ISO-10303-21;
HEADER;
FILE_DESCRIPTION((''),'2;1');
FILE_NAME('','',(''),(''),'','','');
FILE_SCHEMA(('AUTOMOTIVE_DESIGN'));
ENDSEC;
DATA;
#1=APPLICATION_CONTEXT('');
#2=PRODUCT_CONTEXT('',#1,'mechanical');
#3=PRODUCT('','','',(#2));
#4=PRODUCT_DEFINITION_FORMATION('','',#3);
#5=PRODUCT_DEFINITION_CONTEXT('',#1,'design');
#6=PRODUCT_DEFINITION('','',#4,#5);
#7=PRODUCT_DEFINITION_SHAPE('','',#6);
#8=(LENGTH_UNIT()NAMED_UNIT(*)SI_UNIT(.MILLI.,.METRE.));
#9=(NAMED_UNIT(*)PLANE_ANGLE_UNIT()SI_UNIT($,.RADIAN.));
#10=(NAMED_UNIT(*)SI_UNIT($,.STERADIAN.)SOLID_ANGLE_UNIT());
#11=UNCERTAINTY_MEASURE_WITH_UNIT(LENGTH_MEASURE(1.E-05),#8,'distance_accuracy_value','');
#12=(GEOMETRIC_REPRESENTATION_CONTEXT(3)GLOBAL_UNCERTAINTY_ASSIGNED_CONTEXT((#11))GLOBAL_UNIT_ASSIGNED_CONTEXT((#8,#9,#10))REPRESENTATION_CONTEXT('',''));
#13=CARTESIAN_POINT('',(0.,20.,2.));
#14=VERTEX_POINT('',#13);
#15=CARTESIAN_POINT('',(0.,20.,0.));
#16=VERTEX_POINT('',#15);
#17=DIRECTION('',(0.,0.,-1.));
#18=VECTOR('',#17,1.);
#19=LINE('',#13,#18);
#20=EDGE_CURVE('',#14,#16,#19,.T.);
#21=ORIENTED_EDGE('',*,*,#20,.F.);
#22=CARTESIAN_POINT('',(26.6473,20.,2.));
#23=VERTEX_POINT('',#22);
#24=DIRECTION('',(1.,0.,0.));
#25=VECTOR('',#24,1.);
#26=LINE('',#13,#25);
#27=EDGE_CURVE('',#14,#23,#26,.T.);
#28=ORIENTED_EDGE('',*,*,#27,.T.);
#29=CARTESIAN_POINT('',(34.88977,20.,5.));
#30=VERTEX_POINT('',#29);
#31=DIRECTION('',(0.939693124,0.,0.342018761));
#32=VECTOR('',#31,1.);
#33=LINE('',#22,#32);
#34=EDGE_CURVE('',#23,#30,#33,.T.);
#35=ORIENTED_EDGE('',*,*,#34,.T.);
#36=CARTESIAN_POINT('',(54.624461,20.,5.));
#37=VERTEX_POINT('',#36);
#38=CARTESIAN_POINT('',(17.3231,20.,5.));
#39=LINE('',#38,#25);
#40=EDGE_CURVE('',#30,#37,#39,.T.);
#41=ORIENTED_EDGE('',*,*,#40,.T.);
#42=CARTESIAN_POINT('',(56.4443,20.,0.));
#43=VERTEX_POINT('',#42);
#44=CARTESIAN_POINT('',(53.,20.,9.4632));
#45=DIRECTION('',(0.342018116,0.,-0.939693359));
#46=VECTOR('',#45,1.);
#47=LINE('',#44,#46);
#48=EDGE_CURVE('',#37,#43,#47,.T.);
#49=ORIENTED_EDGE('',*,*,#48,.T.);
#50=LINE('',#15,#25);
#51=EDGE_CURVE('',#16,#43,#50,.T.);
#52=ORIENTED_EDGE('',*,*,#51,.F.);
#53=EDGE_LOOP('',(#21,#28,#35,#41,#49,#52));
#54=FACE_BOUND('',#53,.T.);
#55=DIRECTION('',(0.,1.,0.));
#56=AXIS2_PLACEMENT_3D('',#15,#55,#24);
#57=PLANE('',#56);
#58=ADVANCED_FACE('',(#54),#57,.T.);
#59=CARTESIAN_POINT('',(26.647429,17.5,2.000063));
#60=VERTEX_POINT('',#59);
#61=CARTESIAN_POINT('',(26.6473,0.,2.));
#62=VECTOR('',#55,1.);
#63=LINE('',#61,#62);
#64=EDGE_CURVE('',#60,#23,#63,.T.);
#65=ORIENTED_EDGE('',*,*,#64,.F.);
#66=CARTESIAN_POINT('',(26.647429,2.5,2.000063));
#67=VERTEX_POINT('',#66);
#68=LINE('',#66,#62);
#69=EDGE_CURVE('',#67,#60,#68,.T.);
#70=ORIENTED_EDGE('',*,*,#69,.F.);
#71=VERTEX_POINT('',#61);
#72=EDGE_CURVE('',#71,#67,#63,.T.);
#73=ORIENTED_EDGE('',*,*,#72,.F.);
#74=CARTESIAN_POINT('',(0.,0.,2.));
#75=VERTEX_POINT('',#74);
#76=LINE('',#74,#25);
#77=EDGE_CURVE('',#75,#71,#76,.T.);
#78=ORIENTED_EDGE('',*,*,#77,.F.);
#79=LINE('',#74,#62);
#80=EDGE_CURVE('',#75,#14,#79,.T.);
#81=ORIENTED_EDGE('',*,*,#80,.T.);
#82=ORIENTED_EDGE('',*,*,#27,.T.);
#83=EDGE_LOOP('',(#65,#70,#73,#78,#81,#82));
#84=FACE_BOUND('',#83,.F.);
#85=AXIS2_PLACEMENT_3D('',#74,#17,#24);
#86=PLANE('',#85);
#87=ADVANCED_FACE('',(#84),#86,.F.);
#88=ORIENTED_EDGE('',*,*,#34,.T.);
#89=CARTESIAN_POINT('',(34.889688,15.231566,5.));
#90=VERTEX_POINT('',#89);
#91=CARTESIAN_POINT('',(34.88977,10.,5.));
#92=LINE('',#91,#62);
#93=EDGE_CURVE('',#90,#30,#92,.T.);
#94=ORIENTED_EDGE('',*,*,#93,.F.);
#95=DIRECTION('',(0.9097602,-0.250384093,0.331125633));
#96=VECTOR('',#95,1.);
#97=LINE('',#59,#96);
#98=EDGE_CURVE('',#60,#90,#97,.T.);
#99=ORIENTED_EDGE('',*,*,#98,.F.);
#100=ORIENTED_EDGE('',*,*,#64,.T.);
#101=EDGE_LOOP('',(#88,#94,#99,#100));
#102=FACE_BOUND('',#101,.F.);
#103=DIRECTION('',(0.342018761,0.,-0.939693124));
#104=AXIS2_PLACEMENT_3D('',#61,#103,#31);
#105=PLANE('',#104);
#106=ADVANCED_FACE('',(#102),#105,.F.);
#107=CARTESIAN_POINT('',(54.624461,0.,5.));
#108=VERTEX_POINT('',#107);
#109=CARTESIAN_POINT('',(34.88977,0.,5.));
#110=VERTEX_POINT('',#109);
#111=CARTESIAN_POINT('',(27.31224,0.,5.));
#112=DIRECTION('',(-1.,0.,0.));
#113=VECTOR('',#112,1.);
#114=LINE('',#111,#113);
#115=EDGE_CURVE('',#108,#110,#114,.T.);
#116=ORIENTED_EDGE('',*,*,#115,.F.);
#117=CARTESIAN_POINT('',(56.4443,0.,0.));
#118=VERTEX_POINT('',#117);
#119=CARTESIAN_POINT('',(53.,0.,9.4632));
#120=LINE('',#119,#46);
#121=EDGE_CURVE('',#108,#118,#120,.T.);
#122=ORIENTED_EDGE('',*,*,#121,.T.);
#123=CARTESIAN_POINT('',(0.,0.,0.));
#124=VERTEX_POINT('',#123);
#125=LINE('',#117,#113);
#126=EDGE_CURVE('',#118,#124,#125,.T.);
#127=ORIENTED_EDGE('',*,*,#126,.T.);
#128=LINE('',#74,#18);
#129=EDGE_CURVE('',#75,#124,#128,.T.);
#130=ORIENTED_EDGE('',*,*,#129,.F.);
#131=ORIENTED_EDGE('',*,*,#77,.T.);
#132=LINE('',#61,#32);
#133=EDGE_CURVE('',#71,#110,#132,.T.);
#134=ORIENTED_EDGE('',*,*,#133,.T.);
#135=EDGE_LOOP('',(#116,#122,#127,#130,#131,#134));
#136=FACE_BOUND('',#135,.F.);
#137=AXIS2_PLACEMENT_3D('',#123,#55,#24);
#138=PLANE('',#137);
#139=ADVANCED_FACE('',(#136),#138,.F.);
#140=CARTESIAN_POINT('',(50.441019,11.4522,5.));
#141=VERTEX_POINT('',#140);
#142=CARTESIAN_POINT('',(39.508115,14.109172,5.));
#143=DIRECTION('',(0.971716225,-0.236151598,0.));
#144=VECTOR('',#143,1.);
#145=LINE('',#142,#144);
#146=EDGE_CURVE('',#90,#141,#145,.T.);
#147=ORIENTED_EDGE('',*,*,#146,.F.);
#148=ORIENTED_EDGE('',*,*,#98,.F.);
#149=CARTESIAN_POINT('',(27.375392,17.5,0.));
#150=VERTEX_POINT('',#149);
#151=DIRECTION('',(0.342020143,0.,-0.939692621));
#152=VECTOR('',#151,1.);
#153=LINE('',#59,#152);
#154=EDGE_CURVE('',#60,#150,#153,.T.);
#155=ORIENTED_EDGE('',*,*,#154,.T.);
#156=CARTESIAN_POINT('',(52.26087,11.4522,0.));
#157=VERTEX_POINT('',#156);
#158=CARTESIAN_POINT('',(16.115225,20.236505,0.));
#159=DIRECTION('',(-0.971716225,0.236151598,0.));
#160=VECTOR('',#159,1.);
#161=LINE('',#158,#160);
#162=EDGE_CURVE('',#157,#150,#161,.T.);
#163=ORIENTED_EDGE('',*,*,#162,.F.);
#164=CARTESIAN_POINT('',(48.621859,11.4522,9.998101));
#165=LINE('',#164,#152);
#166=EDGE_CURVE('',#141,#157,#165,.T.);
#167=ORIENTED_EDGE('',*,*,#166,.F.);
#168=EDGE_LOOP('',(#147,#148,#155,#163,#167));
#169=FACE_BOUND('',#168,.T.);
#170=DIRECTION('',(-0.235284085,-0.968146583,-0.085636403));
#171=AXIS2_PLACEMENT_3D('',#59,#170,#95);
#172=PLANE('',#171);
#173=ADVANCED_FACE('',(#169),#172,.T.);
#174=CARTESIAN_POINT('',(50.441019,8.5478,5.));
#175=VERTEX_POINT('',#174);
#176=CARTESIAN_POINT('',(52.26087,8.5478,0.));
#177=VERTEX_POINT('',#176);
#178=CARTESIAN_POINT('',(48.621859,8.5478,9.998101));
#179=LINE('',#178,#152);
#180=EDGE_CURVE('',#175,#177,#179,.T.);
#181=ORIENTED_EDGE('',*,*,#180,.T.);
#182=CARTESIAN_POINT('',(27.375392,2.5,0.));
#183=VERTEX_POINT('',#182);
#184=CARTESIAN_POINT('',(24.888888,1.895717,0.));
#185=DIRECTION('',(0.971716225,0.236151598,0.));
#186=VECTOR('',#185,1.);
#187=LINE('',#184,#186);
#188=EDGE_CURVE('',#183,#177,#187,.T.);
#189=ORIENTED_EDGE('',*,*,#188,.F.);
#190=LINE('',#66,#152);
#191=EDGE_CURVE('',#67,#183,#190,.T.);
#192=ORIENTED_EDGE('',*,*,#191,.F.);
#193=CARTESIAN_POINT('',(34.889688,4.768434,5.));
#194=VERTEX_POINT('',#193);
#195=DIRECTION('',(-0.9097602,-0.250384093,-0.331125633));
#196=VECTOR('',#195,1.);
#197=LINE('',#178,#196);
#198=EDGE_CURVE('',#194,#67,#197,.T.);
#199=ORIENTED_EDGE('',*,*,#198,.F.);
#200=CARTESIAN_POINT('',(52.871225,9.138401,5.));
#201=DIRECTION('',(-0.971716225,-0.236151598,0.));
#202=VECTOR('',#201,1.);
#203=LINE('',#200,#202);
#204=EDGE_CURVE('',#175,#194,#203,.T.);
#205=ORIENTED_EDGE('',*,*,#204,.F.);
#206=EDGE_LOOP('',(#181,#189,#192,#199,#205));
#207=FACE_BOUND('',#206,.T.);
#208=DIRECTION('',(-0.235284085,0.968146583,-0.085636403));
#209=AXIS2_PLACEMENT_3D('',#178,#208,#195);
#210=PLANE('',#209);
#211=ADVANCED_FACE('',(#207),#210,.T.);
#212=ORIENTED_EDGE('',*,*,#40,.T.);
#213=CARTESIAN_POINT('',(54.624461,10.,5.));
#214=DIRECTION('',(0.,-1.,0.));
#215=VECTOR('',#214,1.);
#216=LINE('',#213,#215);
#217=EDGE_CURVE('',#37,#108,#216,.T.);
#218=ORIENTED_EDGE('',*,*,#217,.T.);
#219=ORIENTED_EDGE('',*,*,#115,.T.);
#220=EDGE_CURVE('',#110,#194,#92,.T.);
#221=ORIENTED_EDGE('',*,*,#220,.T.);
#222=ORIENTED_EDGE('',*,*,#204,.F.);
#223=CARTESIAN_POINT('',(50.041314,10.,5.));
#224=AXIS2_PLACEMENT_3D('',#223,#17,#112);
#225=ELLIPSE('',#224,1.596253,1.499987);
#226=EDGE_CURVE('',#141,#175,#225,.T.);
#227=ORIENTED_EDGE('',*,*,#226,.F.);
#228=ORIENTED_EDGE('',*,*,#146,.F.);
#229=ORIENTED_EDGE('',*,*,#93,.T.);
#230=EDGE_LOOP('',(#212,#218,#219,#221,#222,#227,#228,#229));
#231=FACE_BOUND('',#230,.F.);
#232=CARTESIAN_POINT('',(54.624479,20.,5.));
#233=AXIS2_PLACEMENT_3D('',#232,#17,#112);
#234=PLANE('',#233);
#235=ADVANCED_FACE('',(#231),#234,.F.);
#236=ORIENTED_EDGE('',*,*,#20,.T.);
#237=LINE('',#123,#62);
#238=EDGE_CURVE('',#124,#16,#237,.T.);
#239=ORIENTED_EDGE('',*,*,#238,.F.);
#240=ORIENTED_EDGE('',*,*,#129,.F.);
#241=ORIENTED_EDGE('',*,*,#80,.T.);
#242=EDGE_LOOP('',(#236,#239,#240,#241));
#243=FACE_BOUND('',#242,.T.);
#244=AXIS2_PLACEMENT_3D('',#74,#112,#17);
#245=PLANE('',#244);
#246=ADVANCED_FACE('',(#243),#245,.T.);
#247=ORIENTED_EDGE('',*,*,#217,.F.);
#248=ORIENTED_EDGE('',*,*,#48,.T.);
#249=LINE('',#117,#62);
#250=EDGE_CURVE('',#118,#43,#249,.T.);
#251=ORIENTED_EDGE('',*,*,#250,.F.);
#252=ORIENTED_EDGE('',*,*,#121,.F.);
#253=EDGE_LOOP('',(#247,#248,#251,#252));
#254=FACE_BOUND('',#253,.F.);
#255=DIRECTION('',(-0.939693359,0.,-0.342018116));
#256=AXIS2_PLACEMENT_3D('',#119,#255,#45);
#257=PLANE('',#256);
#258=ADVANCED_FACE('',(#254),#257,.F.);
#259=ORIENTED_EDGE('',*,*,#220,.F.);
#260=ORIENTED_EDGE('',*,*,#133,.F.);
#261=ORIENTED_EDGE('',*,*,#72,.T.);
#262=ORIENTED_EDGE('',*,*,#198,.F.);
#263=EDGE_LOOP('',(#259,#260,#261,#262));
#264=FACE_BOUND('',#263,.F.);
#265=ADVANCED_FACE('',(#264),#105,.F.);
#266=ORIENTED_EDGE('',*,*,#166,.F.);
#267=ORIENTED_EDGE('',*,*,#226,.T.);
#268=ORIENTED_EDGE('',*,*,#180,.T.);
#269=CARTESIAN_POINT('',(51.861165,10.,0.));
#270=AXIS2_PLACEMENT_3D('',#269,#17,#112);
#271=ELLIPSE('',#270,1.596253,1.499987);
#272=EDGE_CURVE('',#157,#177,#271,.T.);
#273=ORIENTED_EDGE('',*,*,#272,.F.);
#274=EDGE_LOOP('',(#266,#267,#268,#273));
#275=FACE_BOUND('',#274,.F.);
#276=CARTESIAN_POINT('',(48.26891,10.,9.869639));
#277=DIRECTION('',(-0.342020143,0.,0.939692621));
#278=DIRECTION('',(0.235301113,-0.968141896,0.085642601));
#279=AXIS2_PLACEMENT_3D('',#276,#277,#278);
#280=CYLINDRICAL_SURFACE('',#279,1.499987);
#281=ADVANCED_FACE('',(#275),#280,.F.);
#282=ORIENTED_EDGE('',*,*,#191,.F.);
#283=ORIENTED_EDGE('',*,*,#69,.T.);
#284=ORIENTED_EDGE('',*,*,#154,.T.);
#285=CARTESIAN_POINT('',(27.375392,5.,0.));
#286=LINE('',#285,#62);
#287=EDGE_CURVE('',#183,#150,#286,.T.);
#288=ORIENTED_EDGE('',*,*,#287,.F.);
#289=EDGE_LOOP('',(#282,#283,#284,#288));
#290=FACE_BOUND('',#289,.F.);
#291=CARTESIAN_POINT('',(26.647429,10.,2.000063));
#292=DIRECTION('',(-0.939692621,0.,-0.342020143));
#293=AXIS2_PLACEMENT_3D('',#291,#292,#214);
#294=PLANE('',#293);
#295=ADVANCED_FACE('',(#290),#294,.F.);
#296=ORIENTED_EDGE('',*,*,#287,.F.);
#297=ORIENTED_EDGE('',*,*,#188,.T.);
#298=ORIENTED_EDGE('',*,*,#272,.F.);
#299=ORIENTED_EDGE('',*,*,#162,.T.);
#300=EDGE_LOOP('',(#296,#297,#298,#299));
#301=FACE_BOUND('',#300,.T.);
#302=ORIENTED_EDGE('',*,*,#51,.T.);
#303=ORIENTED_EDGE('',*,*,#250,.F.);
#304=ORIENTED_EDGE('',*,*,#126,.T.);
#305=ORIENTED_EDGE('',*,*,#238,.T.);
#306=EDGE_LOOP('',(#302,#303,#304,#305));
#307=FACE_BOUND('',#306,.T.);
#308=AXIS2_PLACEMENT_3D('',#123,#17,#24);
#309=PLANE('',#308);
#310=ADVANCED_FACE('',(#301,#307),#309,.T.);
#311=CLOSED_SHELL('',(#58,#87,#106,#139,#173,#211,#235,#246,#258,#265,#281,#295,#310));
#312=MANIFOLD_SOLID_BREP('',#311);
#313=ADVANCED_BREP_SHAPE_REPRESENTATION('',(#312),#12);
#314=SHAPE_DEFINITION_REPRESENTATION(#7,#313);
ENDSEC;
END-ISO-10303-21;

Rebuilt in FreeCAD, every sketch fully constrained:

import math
import FreeCAD as App
import Part
import Sketcher
from FreeCAD import Vector
Q = App.Units.Quantity

doc = App.newDocument("Part")
body = doc.addObject("PartDesign::Body", "Body")

# Sketch on XZ plane
sketch1 = doc.addObject("Sketcher::SketchObject", "Sketch")
body.addObject(sketch1)
sketch1.AttachmentSupport = (doc.XZ_Plane, [""])
sketch1.MapMode = "FlatFace"
sketch1.addGeometry(Part.LineSegment(Vector(0, 0, 0), Vector(0, 2, 0)), False)
sketch1.addGeometry(Part.LineSegment(Vector(0, 2, 0), Vector(26.6, 2, 0)), False)
sketch1.addGeometry(Part.LineSegment(Vector(26.6, 2, 0), Vector(52.3, 11.3, 0)), False)
sketch1.addGeometry(Part.LineSegment(Vector(52.3, 11.3, 0), Vector(53, 9.5, 0)), False)
sketch1.addGeometry(Part.LineSegment(Vector(53, 9.5, 0), Vector(56.4, 0, 0)), False)
sketch1.addGeometry(Part.LineSegment(Vector(56.4, 0, 0), Vector(0, 0, 0)), False)
sketch1.addConstraint(Sketcher.Constraint("Coincident", 0, 2, 1, 1))
sketch1.addConstraint(Sketcher.Constraint("Coincident", 1, 2, 2, 1))
sketch1.addConstraint(Sketcher.Constraint("Coincident", 2, 2, 3, 1))
sketch1.addConstraint(Sketcher.Constraint("Coincident", 3, 2, 4, 1))
sketch1.addConstraint(Sketcher.Constraint("Coincident", 4, 2, 5, 1))
sketch1.addConstraint(Sketcher.Constraint("Coincident", 5, 2, 0, 1))
sketch1.addConstraint(Sketcher.Constraint("Vertical", 0))
sketch1.addConstraint(Sketcher.Constraint("Horizontal", 1))
sketch1.addConstraint(Sketcher.Constraint("Horizontal", 5))
sketch1.addConstraint(Sketcher.Constraint("Coincident", 5, 2, -1, 1))
sketch1.addConstraint(Sketcher.Constraint("Perpendicular", 2, 3))
sketch1.addConstraint(Sketcher.Constraint("Parallel", 3, 4))
sketch1.addConstraint(Sketcher.Constraint("DistanceY", 0, 1, 0, 2, 2.0))
sketch1.addConstraint(Sketcher.Constraint("Distance", 3, 2.0))
sketch1.addConstraint(Sketcher.Constraint("Angle", 2, Q("20 deg")))
sketch1.addConstraint(Sketcher.Constraint("DistanceX", -1, 1, 3, 2, 53.0))
sketch1.addConstraint(Sketcher.Constraint("Distance", 2, 27.316))
pad1 = doc.addObject("PartDesign::Pad", "Pad")
body.addObject(pad1)
pad1.Profile = sketch1
pad1.Length = 20
pad1.Reversed = True

# Sketch on an angled plane
sketch2 = doc.addObject("Sketcher::SketchObject", "Sketch001")
body.addObject(sketch2)
sketch2.Placement = App.Placement(Vector(2.4744, 0, -6.7982), App.Rotation(Vector(0, -1, 0), Vector(0.939692621, 0, 0.342020143), Vector(-0.342020143, 0, 0.939692621), "ZXY"))
sketch2.addGeometry(Part.LineSegment(Vector(-2.5, 25.7, 0), Vector(-8.5, 49.1, 0)), False)
sketch2.addGeometry(Part.ArcOfCircle(Part.Circle(Vector(-10, 48.7, 0), Vector(0, 0, 1), 1.5), math.radians(15), math.radians(165)), False)
sketch2.addGeometry(Part.LineSegment(Vector(-11.5, 49.1, 0), Vector(-17.5, 25.7, 0)), False)
sketch2.addGeometry(Part.LineSegment(Vector(-17.5, 25.7, 0), Vector(-2.5, 25.7, 0)), False)
sketch2.addConstraint(Sketcher.Constraint("Tangent", 0, 2, 1, 1))
sketch2.addConstraint(Sketcher.Constraint("Tangent", 1, 2, 2, 1))
sketch2.addConstraint(Sketcher.Constraint("Coincident", 2, 2, 3, 1))
sketch2.addConstraint(Sketcher.Constraint("Coincident", 3, 2, 0, 1))
sketch2.addConstraint(Sketcher.Constraint("Horizontal", 3))
sketch2.addConstraint(Sketcher.Constraint("Horizontal", 0, 2, 1, 2))
sketch2.addConstraint(Sketcher.Constraint("Radius", 1, 1.5))
sketch2.addConstraint(Sketcher.Constraint("DistanceX", 2, 2, 1, 3, 7.5))
sketch2.addConstraint(Sketcher.Constraint("DistanceX", 1, 3, -1, 1, 10.0))
sketch2.addConstraint(Sketcher.Constraint("Angle", 0, Q("104.5002 deg")))
sketch2.addConstraint(Sketcher.Constraint("DistanceY", -1, 1, 0, 2, 49.109))
pocket1 = doc.addObject("PartDesign::Pocket", "Pocket")
body.addObject(pocket1)
pocket1.Profile = sketch2
pocket1.Length = 15

# Sketch on XZ plane
sketch3 = doc.addObject("Sketcher::SketchObject", "Sketch002")
body.addObject(sketch3)
sketch3.AttachmentSupport = (doc.XZ_Plane, [""])
sketch3.MapMode = "FlatFace"
sketch3.AttachmentOffset = App.Placement(Vector(0, 0, -20), App.Rotation())
sketch3.addGeometry(Part.LineSegment(Vector(17, 5, 0), Vector(17, 14, 0)), False)
sketch3.addGeometry(Part.LineSegment(Vector(17, 14, 0), Vector(56, 14, 0)), False)
sketch3.addGeometry(Part.LineSegment(Vector(56, 14, 0), Vector(56, 5, 0)), False)
sketch3.addGeometry(Part.LineSegment(Vector(56, 5, 0), Vector(17, 5, 0)), False)
sketch3.addConstraint(Sketcher.Constraint("Coincident", 0, 2, 1, 1))
sketch3.addConstraint(Sketcher.Constraint("Coincident", 1, 2, 2, 1))
sketch3.addConstraint(Sketcher.Constraint("Coincident", 2, 2, 3, 1))
sketch3.addConstraint(Sketcher.Constraint("Coincident", 3, 2, 0, 1))
sketch3.addConstraint(Sketcher.Constraint("Vertical", 0))
sketch3.addConstraint(Sketcher.Constraint("Horizontal", 1))
sketch3.addConstraint(Sketcher.Constraint("Vertical", 2))
sketch3.addConstraint(Sketcher.Constraint("Horizontal", 3))
sketch3.addConstraint(Sketcher.Constraint("DistanceY", -1, 1, 2, 2, 5.0))
sketch3.addConstraint(Sketcher.Constraint("DistanceX", 1, 1, 1, 2, 39.1212))
sketch3.addConstraint(Sketcher.Constraint("DistanceY", 0, 1, 0, 2, 9.1022))
sketch3.addConstraint(Sketcher.Constraint("DistanceX", -1, 1, 0, 2, 17.323))
pocket2 = doc.addObject("PartDesign::Pocket", "Pocket001")
body.addObject(pocket2)
pocket2.Profile = sketch3
pocket2.Length = 86
pocket2.Reversed = True

doc.recompute()
